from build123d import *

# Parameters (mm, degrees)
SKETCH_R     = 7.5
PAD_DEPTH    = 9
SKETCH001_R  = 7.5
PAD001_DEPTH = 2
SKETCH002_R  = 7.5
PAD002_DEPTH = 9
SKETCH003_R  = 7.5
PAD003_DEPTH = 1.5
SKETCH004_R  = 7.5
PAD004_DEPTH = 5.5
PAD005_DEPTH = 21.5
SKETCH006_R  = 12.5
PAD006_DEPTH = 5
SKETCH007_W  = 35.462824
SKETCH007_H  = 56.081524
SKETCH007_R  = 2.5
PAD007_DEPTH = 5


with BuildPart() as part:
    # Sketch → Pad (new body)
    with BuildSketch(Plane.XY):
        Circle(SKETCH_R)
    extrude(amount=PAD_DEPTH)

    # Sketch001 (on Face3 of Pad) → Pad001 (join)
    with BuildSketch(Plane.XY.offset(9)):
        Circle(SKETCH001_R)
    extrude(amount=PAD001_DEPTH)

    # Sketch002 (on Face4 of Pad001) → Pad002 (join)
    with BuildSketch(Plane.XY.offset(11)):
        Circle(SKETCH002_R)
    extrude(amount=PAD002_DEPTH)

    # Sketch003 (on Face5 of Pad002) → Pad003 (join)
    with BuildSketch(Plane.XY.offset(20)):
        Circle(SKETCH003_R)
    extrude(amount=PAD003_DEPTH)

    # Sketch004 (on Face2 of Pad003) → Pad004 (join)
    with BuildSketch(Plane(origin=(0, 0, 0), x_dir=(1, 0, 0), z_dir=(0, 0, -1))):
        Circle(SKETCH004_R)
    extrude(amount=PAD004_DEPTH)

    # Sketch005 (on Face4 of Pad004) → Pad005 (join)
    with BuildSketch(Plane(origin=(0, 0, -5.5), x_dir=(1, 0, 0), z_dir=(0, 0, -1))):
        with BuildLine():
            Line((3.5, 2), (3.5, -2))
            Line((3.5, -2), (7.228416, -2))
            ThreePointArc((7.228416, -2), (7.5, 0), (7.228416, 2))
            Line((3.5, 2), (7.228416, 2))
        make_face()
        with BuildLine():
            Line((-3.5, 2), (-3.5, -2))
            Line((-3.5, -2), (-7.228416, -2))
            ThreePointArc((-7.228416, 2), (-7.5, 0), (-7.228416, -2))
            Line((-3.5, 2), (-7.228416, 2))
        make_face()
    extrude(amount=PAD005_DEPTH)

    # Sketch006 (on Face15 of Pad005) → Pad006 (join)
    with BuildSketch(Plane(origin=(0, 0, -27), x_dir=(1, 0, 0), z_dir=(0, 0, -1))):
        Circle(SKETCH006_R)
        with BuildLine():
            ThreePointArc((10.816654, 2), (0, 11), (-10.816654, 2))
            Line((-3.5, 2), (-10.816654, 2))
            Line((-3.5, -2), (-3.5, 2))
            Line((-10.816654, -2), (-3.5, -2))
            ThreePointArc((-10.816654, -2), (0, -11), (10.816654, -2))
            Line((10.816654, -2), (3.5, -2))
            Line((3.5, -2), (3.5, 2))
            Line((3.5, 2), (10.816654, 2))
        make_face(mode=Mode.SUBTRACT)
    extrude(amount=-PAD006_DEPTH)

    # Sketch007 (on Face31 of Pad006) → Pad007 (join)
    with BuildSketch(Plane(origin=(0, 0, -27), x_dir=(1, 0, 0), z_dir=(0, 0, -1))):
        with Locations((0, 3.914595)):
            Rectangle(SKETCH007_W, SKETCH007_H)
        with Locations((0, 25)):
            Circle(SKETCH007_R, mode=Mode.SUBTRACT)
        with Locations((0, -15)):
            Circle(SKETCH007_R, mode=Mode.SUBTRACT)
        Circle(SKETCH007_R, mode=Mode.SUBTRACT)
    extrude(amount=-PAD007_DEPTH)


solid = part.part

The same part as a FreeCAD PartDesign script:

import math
import FreeCAD as App
import Part
import Sketcher

V = App.Vector
Q = App.Units.Quantity


def add_polygon(sketch, points):
    """Adds a closed chain of lines whose ends are joined by coincident constraints."""
    first, n = sketch.GeometryCount, len(points)
    for a, b in zip(points, points[1:] + points[:1]):
        sketch.addGeometry(Part.LineSegment(App.Vector(*a, 0), App.Vector(*b, 0)), False)
    for i in range(n):
        sketch.addConstraint(Sketcher.Constraint("Coincident", first + i, 2, first + (i + 1) % n, 1))

doc = App.newDocument("Part")
body = doc.addObject("PartDesign::Body", "Body")

sketch1 = body.newObject("Sketcher::SketchObject", "Sketch")
sketch1.AttachmentSupport = (doc.getObject("XY_Plane"), [""])
sketch1.MapMode = "FlatFace"
sketch1.addGeometry(Part.Circle(V(0, 0, 0), V(0, 0, 1), 8), False)
sketch1.addConstraint([
    Sketcher.Constraint("Coincident", 0, 3, -1, 1),
    Sketcher.Constraint("Diameter", 0, Q("15 mm")),
])
pad1 = body.newObject("PartDesign::Pad", "Pad")
pad1.Profile = sketch1
pad1.Length = 9

sketch2 = body.newObject("Sketcher::SketchObject", "Sketch001")
sketch2.AttachmentSupport = (doc.getObject("XY_Plane"), [""])
sketch2.MapMode = "FlatFace"
sketch2.AttachmentOffset = App.Placement(V(0, 0, 9), App.Rotation())
sketch2.addGeometry(Part.Circle(V(0, 0, 0), V(0, 0, 1), 8), False)
sketch2.addConstraint([
    Sketcher.Constraint("Coincident", 0, 3, -1, 1),
    Sketcher.Constraint("Diameter", 0, Q("15 mm")),
])
pad2 = body.newObject("PartDesign::Pad", "Pad001")
pad2.Profile = sketch2
pad2.Length = 2

sketch3 = body.newObject("Sketcher::SketchObject", "Sketch002")
sketch3.AttachmentSupport = (doc.getObject("XY_Plane"), [""])
sketch3.MapMode = "FlatFace"
sketch3.AttachmentOffset = App.Placement(V(0, 0, 11), App.Rotation())
sketch3.addGeometry(Part.Circle(V(0, 0, 0), V(0, 0, 1), 8), False)
sketch3.addConstraint([
    Sketcher.Constraint("Coincident", 0, 3, -1, 1),
    Sketcher.Constraint("Diameter", 0, Q("15 mm")),
])
pad3 = body.newObject("PartDesign::Pad", "Pad002")
pad3.Profile = sketch3
pad3.Length = 9

sketch4 = body.newObject("Sketcher::SketchObject", "Sketch003")
sketch4.AttachmentSupport = (doc.getObject("XY_Plane"), [""])
sketch4.MapMode = "FlatFace"
sketch4.AttachmentOffset = App.Placement(V(0, 0, 20), App.Rotation())
sketch4.addGeometry(Part.Circle(V(0, 0, 0), V(0, 0, 1), 8), False)
sketch4.addConstraint([
    Sketcher.Constraint("Coincident", 0, 3, -1, 1),
    Sketcher.Constraint("Diameter", 0, Q("15 mm")),
])
pad4 = body.newObject("PartDesign::Pad", "Pad003")
pad4.Profile = sketch4
pad4.Length = 1.5

sketch5 = body.newObject("Sketcher::SketchObject", "Sketch004")
sketch5.AttachmentSupport = (doc.getObject("XY_Plane"), [""])
sketch5.MapMode = "FlatFace"
sketch5.addGeometry(Part.Circle(V(0, 0, 0), V(0, 0, 1), 8), False)
sketch5.addConstraint([
    Sketcher.Constraint("Coincident", 0, 3, -1, 1),
    Sketcher.Constraint("Diameter", 0, Q("15 mm")),
])
pad5 = body.newObject("PartDesign::Pad", "Pad004")
pad5.Profile = sketch5
pad5.Length = 5.5
pad5.Reversed = True

sketch6 = body.newObject("Sketcher::SketchObject", "Sketch005")
sketch6.AttachmentSupport = (doc.getObject("XY_Plane"), [""])
sketch6.MapMode = "FlatFace"
sketch6.AttachmentOffset = App.Placement(V(0, 0, -5.5), App.Rotation())
sketch6.addGeometry([
    Part.LineSegment(V(3.5, -2, 0), V(3.5, 2, 0)),
    Part.LineSegment(V(3.5, 2, 0), V(7.2, 2, 0)),
    Part.ArcOfCircle(Part.Circle(V(0, 0, 0), V(0, 0, 1), 7.5), math.radians(-15), math.radians(15)),
    Part.LineSegment(V(7.2, -2, 0), V(3.5, -2, 0)),
    Part.LineSegment(V(-3.5, 2, 0), V(-3.5, -2, 0)),
    Part.LineSegment(V(-3.5, -2, 0), V(-7.2, -2, 0)),
    Part.ArcOfCircle(Part.Circle(V(0, 0, 0), V(0, 0, 1), 7.5), math.radians(165), math.radians(195)),
    Part.LineSegment(V(-7.2, 2, 0), V(-3.5, 2, 0)),
], False)
sketch6.addConstraint([
    Sketcher.Constraint("Coincident", 0, 2, 1, 1),
    Sketcher.Constraint("Coincident", 1, 2, 2, 2),
    Sketcher.Constraint("Coincident", 2, 1, 3, 1),
    Sketcher.Constraint("Coincident", 3, 2, 0, 1),
    Sketcher.Constraint("Coincident", 4, 2, 5, 1),
    Sketcher.Constraint("Coincident", 5, 2, 6, 2),
    Sketcher.Constraint("Coincident", 6, 1, 7, 1),
    Sketcher.Constraint("Coincident", 7, 2, 4, 1),
    Sketcher.Constraint("Vertical", 0),
    Sketcher.Constraint("Horizontal", 1),
    Sketcher.Constraint("Horizontal", 3),
    Sketcher.Constraint("Vertical", 4),
    Sketcher.Constraint("Horizontal", 5),
    Sketcher.Constraint("Horizontal", 7),
    Sketcher.Constraint("Coincident", 2, 3, -1, 1),
    Sketcher.Constraint("Coincident", 6, 3, -1, 1),
    Sketcher.Constraint("Equal", 2, 6),
    Sketcher.Constraint("Symmetric", 0, 2, 4, 2, -1, 1),
    Sketcher.Constraint("Horizontal", 3, 2, 4, 2),
    Sketcher.Constraint("Horizontal", 1, 2, 6, 1),
    Sketcher.Constraint("DistanceY", 0, 1, 0, 2, Q("4 mm")),
    Sketcher.Constraint("DistanceX", 4, 2, 3, 2, Q("7 mm")),
    Sketcher.Constraint("Radius", 2, Q("7.499996 mm")),
])
pad6 = body.newObject("PartDesign::Pad", "Pad005")
pad6.Profile = sketch6
pad6.Length = 21.5
pad6.Reversed = True

sketch7 = body.newObject("Sketcher::SketchObject", "Sketch006")
sketch7.AttachmentSupport = (doc.getObject("XY_Plane"), [""])
sketch7.MapMode = "FlatFace"
sketch7.AttachmentOffset = App.Placement(V(0, 0, -27), App.Rotation())
sketch7.addGeometry([
    Part.Circle(V(0, 0, 0), V(0, 0, 1), 12.5),
    Part.ArcOfCircle(Part.Circle(V(0, 0, 0), V(0, 0, 1), 11), math.radians(-170), math.radians(-10)),
    Part.LineSegment(V(10.8, -2, 0), V(3.5, -2, 0)),
    Part.LineSegment(V(3.5, -2, 0), V(3.5, 2, 0)),
    Part.LineSegment(V(3.5, 2, 0), V(10.8, 2, 0)),
    Part.ArcOfCircle(Part.Circle(V(0, 0, 0), V(0, 0, 1), 11), math.radians(10), math.radians(170)),
    Part.LineSegment(V(-10.8, 2, 0), V(-3.5, 2, 0)),
    Part.LineSegment(V(-3.5, 2, 0), V(-3.5, -2, 0)),
    Part.LineSegment(V(-3.5, -2, 0), V(-10.8, -2, 0)),
], False)
sketch7.addConstraint([
    Sketcher.Constraint("Coincident", 1, 2, 2, 1),
    Sketcher.Constraint("Coincident", 2, 2, 3, 1),
    Sketcher.Constraint("Coincident", 3, 2, 4, 1),
    Sketcher.Constraint("Coincident", 4, 2, 5, 1),
    Sketcher.Constraint("Coincident", 5, 2, 6, 1),
    Sketcher.Constraint("Coincident", 6, 2, 7, 1),
    Sketcher.Constraint("Coincident", 7, 2, 8, 1),
    Sketcher.Constraint("Coincident", 8, 2, 1, 1),
    Sketcher.Constraint("Horizontal", 2),
    Sketcher.Constraint("Vertical", 3),
    Sketcher.Constraint("Horizontal", 4),
    Sketcher.Constraint("Horizontal", 6),
    Sketcher.Constraint("Vertical", 7),
    Sketcher.Constraint("Horizontal", 8),
    Sketcher.Constraint("Coincident", 0, 3, -1, 1),
    Sketcher.Constraint("Coincident", 1, 3, -1, 1),
    Sketcher.Constraint("Coincident", 5, 3, -1, 1),
    Sketcher.Constraint("Equal", 1, 5),
    Sketcher.Constraint("Symmetric", 2, 2, 6, 2, -1, 1),
    Sketcher.Constraint("Horizontal", 4, 2, 5, 2),
    Sketcher.Constraint("Horizontal", 2, 2, 7, 2),
    Sketcher.Constraint("Diameter", 0, Q("25 mm")),
    Sketcher.Constraint("Radius", 1, Q("11 mm")),
    Sketcher.Constraint("DistanceY", 3, 1, 3, 2, Q("4 mm")),
    Sketcher.Constraint("DistanceX", 6, 2, 3, 2, Q("7 mm")),
])
pad7 = body.newObject("PartDesign::Pad", "Pad006")
pad7.Profile = sketch7
pad7.Length = 5

sketch8 = body.newObject("Sketcher::SketchObject", "Sketch007")
sketch8.AttachmentSupport = (doc.getObject("XY_Plane"), [""])
sketch8.MapMode = "FlatFace"
sketch8.AttachmentOffset = App.Placement(V(0, 0, -27), App.Rotation())
add_polygon(sketch8, [(-17.7, -32), (-17.7, 24.1), (17.7, 24.1), (17.7, -32)])
sketch8.addGeometry(Part.Circle(V(0, 15, 0), V(0, 0, 1), 2.5), False)
sketch8.addGeometry(Part.Circle(V(0, 0, 0), V(0, 0, 1), 2.5), False)
sketch8.addGeometry(Part.Circle(V(0, -25, 0), V(0, 0, 1), 2.5), False)
sketch8.addConstraint([
    Sketcher.Constraint("Vertical", 0),
    Sketcher.Constraint("Horizontal", 1),
    Sketcher.Constraint("Vertical", 2),
    Sketcher.Constraint("Horizontal", 3),
    Sketcher.Constraint("Coincident", 5, 3, -1, 1),
    Sketcher.Constraint("Equal", 4, 5),
    Sketcher.Constraint("Equal", 5, 6),
    Sketcher.Constraint("PointOnObject", 4, 3, -2),
    Sketcher.Constraint("PointOnObject", 6, 3, -2),
    Sketcher.Constraint("Diameter", 4, Q("5 mm")),
    Sketcher.Constraint("DistanceY", -1, 1, 4, 3, Q("15 mm")),
    Sketcher.Constraint("DistanceY", 6, 3, -1, 1, Q("25 mm")),
    Sketcher.Constraint("DistanceX", 1, 1, 1, 2, Q("35.462824 mm")),
    Sketcher.Constraint("DistanceY", 0, 1, 0, 2, Q("56.081524 mm")),
    Sketcher.Constraint("DistanceX", 0, 2, -1, 1, Q("17.731412 mm")),
    Sketcher.Constraint("DistanceY", -1, 1, 0, 2, Q("24.126167 mm")),
])
pad8 = body.newObject("PartDesign::Pad", "Pad007")
pad8.Profile = sketch8
pad8.Length = 5

doc.recompute()
